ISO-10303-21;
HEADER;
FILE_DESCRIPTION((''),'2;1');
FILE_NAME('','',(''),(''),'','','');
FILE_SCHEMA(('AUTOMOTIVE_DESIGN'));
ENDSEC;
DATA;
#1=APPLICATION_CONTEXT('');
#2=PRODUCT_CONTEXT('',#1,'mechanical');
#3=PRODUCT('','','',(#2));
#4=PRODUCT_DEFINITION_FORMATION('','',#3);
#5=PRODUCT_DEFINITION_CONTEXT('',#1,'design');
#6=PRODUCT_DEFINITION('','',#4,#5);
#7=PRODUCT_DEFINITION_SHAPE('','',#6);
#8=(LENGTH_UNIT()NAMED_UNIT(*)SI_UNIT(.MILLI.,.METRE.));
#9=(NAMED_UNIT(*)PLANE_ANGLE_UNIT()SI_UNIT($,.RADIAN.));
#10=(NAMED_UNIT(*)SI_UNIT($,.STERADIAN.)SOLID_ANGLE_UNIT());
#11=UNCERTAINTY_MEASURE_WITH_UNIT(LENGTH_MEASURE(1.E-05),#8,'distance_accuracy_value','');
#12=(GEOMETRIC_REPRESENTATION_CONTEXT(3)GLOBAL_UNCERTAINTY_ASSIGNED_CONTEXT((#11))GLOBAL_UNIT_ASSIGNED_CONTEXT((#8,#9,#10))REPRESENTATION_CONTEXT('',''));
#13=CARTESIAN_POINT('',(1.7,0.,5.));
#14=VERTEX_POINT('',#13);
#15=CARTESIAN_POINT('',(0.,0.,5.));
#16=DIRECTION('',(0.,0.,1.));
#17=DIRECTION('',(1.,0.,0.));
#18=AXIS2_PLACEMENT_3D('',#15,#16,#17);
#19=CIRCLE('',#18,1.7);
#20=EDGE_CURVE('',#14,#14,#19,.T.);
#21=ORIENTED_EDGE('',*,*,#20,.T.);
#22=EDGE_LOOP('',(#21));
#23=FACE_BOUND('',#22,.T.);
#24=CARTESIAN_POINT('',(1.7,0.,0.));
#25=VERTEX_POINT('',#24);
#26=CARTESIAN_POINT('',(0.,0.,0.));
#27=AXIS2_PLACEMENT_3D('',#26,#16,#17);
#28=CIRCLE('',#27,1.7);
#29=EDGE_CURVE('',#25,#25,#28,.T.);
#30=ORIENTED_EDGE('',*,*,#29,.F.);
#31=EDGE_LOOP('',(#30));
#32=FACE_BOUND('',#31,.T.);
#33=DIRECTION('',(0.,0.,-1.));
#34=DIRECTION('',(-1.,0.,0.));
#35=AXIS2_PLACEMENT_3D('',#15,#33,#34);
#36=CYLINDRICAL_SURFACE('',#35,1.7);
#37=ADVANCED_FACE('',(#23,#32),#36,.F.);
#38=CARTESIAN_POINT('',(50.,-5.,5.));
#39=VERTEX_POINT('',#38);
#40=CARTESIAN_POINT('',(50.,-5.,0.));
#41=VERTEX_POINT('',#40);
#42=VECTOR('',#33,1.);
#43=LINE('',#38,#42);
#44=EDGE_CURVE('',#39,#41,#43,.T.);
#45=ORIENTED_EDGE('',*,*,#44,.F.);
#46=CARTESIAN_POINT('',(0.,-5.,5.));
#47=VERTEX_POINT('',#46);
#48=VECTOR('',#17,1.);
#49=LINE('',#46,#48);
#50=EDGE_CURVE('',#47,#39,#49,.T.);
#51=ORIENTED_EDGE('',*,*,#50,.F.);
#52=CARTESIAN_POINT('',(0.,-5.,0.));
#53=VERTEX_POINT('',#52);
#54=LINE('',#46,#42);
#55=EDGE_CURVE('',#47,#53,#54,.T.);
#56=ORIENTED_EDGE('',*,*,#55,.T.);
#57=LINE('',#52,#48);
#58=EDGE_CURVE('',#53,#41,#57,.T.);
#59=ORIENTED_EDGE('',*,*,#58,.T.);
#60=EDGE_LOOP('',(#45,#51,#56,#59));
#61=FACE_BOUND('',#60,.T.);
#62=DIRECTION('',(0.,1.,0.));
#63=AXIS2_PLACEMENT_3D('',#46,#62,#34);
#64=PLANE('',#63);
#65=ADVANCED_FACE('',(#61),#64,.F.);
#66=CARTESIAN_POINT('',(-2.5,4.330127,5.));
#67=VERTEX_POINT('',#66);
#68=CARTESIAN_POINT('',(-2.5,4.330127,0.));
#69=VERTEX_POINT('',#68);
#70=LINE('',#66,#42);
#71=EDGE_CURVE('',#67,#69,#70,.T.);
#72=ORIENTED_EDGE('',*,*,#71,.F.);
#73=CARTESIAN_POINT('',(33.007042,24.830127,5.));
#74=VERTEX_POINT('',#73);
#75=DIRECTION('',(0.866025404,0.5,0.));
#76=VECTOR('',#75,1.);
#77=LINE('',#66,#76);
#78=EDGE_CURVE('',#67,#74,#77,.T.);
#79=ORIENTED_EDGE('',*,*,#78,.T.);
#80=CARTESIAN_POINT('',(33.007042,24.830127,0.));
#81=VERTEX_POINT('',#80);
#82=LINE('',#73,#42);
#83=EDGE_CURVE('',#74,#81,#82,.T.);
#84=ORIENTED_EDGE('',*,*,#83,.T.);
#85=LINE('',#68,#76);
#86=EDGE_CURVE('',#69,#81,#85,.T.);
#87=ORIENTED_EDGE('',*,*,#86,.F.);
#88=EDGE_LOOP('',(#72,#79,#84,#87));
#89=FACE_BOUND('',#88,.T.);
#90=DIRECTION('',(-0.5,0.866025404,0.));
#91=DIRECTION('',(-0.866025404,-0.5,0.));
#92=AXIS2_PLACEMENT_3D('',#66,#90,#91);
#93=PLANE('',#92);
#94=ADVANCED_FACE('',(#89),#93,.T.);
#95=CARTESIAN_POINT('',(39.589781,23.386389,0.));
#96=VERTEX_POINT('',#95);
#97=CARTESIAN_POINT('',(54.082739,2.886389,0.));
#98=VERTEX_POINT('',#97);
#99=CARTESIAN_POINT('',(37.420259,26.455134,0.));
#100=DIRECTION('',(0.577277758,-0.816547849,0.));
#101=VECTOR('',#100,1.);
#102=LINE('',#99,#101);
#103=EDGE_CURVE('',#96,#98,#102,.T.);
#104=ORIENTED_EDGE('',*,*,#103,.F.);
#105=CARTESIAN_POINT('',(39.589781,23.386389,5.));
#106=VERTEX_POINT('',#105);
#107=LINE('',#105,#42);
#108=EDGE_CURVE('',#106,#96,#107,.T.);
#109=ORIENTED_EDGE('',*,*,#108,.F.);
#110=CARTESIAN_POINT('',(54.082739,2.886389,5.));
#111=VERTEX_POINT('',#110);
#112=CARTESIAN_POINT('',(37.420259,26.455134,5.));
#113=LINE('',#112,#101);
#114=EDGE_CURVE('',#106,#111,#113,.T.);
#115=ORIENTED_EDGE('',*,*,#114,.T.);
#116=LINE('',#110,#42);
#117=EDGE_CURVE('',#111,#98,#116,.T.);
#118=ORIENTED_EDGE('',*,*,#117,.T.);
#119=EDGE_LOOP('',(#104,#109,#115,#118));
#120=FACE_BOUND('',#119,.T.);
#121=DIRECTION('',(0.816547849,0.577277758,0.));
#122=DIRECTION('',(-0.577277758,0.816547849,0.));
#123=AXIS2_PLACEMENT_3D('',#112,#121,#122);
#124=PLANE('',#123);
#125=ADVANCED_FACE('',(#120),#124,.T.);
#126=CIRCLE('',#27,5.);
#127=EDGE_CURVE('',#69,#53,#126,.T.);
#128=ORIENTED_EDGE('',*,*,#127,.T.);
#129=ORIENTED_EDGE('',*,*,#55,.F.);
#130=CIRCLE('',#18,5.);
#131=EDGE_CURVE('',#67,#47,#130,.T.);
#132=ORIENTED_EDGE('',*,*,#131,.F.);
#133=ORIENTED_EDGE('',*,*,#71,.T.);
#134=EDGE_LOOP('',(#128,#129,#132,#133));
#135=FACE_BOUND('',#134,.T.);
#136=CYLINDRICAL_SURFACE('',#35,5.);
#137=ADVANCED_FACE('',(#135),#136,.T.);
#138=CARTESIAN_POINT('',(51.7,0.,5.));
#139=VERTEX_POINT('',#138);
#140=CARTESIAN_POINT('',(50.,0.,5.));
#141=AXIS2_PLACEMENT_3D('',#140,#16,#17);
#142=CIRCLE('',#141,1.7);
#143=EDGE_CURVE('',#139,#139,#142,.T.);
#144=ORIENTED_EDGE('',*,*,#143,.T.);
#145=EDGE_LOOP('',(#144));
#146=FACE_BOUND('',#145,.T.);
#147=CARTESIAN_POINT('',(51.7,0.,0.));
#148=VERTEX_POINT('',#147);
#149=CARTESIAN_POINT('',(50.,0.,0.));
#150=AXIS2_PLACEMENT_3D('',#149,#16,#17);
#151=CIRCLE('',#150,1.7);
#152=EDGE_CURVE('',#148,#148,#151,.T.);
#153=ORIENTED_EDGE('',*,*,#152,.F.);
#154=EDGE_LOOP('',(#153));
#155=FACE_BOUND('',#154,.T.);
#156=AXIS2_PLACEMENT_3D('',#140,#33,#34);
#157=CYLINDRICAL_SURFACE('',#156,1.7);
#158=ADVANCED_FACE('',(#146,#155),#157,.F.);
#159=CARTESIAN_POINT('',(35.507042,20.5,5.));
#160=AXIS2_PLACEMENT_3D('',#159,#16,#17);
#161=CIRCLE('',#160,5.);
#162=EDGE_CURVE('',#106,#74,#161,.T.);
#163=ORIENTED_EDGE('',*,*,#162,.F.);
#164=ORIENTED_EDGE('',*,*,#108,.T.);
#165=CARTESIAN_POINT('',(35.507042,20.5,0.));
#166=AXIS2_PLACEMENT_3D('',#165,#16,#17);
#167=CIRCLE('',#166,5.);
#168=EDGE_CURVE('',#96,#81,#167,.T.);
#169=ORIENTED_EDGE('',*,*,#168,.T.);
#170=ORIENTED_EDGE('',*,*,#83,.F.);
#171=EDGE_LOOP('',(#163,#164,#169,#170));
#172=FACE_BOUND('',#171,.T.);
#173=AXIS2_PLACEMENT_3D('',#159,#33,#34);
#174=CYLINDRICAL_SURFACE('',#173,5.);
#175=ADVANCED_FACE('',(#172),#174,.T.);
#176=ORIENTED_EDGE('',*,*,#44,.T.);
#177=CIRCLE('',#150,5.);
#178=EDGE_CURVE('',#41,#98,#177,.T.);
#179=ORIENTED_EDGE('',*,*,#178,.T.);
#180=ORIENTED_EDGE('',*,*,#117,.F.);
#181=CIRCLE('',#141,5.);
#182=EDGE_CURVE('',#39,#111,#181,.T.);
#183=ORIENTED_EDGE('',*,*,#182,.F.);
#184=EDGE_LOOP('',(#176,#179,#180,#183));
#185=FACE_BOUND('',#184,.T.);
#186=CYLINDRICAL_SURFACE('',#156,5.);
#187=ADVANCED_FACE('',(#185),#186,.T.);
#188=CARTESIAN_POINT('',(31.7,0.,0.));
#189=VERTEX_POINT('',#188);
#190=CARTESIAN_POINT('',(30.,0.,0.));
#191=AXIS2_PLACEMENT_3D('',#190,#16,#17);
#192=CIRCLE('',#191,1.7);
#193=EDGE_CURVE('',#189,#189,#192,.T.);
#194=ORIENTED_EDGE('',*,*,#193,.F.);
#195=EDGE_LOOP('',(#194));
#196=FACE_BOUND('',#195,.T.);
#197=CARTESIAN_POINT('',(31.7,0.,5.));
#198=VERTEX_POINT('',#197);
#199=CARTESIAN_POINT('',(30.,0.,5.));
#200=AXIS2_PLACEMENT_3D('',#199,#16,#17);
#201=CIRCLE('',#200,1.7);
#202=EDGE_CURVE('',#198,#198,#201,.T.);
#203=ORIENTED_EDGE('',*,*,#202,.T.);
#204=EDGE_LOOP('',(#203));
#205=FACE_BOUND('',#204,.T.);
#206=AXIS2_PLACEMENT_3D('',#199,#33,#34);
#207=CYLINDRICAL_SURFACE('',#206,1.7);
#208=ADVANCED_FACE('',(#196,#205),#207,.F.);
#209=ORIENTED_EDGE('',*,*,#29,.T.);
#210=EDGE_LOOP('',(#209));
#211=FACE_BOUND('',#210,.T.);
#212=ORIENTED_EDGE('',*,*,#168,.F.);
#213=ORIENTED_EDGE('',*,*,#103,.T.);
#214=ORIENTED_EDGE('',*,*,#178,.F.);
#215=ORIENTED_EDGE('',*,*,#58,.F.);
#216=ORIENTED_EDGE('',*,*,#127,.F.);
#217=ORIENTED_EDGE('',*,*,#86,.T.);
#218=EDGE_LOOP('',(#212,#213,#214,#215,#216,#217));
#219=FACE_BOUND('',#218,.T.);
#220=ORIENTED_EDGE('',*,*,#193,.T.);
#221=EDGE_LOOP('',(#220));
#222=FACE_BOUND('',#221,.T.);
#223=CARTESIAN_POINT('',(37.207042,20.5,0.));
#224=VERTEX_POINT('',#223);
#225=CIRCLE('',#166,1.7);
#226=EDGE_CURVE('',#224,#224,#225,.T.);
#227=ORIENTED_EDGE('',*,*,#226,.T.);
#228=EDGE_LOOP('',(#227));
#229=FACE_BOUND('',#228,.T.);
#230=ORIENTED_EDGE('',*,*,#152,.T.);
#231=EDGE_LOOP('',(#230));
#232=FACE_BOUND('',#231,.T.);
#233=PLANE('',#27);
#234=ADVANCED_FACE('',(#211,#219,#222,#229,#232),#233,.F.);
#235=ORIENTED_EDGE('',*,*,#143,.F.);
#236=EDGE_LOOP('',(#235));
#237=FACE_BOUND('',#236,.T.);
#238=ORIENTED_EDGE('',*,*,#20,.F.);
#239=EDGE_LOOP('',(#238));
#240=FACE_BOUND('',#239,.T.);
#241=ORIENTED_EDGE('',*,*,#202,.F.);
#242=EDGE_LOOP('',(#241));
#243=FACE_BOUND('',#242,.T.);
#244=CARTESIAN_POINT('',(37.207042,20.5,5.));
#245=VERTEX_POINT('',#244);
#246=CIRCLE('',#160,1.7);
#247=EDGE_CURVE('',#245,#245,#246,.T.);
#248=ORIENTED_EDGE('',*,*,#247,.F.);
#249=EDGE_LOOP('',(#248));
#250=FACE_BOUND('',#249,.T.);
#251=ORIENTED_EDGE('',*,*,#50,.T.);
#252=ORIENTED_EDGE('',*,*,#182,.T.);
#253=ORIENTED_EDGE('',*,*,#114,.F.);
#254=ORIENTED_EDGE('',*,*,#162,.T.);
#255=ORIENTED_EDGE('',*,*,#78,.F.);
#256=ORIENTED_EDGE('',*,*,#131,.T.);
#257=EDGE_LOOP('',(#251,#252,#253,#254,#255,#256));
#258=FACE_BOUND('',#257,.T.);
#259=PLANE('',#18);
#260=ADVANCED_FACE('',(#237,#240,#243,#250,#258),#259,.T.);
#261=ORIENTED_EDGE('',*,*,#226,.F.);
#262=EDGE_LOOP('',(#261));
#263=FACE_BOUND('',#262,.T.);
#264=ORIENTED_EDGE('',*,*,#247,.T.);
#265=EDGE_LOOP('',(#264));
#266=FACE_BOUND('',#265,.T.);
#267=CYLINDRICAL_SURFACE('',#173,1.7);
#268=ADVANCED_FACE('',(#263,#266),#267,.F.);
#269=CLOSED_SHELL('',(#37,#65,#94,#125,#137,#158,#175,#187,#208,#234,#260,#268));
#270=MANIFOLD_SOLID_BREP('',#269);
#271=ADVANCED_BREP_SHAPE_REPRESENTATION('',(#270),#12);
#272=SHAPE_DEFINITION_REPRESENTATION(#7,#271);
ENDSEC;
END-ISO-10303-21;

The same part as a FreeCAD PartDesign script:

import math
import FreeCAD as App
import Part
import Sketcher
from FreeCAD import Vector
Q = App.Units.Quantity

doc = App.newDocument("Part")
body = doc.addObject("PartDesign::Body", "Body")

# Sketch on XY plane
sketch1 = body.newObject("Sketcher::SketchObject", "Sketch")
sketch1.AttachmentSupport = (doc.getObject("XY_Plane"), [""])
sketch1.MapMode = "FlatFace"
sketch1.addGeometry([
    Part.LineSegment(Vector(54.1, 2.9, 0), Vector(39.6, 23.4, 0)),  # 0
    Part.ArcOfCircle(Part.Circle(Vector(35.5, 20.5, 0), Vector(0, 0, 1), 5), math.radians(35), math.radians(120)),  # 1
    Part.LineSegment(Vector(33, 24.8, 0), Vector(-2.5, 4.3, 0)),  # 2
    Part.ArcOfCircle(Part.Circle(Vector(0, 0, 0), Vector(0, 0, 1), 5), math.radians(120), math.radians(270)),  # 3
    Part.LineSegment(Vector(0, -5, 0), Vector(50, -5, 0)),  # 4
    Part.ArcOfCircle(Part.Circle(Vector(50, 0, 0), Vector(0, 0, 1), 5), math.radians(-90), math.radians(35)),  # 5
    Part.Circle(Vector(0, 0, 0), Vector(0, 0, 1), 1.7),  # 6
    Part.Circle(Vector(30, 0, 0), Vector(0, 0, 1), 1.7),  # 7
    Part.Circle(Vector(50, 0, 0), Vector(0, 0, 1), 1.7),  # 8
    Part.Circle(Vector(35.5, 20.5, 0), Vector(0, 0, 1), 1.7),  # 9
], False)
sketch1.addConstraint([
    Sketcher.Constraint("Tangent", 0, 2, 1, 1),
    Sketcher.Constraint("Tangent", 1, 2, 2, 1),
    Sketcher.Constraint("Tangent", 2, 2, 3, 1),
    Sketcher.Constraint("Tangent", 3, 2, 4, 1),
    Sketcher.Constraint("Tangent", 4, 2, 5, 1),
    Sketcher.Constraint("Tangent", 5, 2, 0, 1),
    Sketcher.Constraint("Horizontal", 4),
    Sketcher.Constraint("Coincident", 3, 3, -1, 1),
    Sketcher.Constraint("Coincident", 6, 3, -1, 1),
    Sketcher.Constraint("Coincident", 8, 3, 5, 3),
    Sketcher.Constraint("Coincident", 9, 3, 1, 3),
    Sketcher.Constraint("Equal", 1, 3),
    Sketcher.Constraint("Equal", 3, 5),
    Sketcher.Constraint("Equal", 6, 7),
    Sketcher.Constraint("Equal", 7, 8),
    Sketcher.Constraint("Equal", 8, 9),
    Sketcher.Constraint("PointOnObject", 7, 3, -1),
    Sketcher.Constraint("Radius", 1, 5.0),
    Sketcher.Constraint("Diameter", 6, 3.4),
    Sketcher.Constraint("DistanceX", 4, 1, 4, 2, 50.0),
    Sketcher.Constraint("Angle", 2, Q("-150 deg")),
    Sketcher.Constraint("Distance", 2, 41.0),
    Sketcher.Constraint("DistanceX", -1, 1, 7, 3, 30.0),
])
pad1 = body.newObject("PartDesign::Pad", "Pad")
pad1.Profile = sketch1
pad1.Length = 5

doc.recompute()
